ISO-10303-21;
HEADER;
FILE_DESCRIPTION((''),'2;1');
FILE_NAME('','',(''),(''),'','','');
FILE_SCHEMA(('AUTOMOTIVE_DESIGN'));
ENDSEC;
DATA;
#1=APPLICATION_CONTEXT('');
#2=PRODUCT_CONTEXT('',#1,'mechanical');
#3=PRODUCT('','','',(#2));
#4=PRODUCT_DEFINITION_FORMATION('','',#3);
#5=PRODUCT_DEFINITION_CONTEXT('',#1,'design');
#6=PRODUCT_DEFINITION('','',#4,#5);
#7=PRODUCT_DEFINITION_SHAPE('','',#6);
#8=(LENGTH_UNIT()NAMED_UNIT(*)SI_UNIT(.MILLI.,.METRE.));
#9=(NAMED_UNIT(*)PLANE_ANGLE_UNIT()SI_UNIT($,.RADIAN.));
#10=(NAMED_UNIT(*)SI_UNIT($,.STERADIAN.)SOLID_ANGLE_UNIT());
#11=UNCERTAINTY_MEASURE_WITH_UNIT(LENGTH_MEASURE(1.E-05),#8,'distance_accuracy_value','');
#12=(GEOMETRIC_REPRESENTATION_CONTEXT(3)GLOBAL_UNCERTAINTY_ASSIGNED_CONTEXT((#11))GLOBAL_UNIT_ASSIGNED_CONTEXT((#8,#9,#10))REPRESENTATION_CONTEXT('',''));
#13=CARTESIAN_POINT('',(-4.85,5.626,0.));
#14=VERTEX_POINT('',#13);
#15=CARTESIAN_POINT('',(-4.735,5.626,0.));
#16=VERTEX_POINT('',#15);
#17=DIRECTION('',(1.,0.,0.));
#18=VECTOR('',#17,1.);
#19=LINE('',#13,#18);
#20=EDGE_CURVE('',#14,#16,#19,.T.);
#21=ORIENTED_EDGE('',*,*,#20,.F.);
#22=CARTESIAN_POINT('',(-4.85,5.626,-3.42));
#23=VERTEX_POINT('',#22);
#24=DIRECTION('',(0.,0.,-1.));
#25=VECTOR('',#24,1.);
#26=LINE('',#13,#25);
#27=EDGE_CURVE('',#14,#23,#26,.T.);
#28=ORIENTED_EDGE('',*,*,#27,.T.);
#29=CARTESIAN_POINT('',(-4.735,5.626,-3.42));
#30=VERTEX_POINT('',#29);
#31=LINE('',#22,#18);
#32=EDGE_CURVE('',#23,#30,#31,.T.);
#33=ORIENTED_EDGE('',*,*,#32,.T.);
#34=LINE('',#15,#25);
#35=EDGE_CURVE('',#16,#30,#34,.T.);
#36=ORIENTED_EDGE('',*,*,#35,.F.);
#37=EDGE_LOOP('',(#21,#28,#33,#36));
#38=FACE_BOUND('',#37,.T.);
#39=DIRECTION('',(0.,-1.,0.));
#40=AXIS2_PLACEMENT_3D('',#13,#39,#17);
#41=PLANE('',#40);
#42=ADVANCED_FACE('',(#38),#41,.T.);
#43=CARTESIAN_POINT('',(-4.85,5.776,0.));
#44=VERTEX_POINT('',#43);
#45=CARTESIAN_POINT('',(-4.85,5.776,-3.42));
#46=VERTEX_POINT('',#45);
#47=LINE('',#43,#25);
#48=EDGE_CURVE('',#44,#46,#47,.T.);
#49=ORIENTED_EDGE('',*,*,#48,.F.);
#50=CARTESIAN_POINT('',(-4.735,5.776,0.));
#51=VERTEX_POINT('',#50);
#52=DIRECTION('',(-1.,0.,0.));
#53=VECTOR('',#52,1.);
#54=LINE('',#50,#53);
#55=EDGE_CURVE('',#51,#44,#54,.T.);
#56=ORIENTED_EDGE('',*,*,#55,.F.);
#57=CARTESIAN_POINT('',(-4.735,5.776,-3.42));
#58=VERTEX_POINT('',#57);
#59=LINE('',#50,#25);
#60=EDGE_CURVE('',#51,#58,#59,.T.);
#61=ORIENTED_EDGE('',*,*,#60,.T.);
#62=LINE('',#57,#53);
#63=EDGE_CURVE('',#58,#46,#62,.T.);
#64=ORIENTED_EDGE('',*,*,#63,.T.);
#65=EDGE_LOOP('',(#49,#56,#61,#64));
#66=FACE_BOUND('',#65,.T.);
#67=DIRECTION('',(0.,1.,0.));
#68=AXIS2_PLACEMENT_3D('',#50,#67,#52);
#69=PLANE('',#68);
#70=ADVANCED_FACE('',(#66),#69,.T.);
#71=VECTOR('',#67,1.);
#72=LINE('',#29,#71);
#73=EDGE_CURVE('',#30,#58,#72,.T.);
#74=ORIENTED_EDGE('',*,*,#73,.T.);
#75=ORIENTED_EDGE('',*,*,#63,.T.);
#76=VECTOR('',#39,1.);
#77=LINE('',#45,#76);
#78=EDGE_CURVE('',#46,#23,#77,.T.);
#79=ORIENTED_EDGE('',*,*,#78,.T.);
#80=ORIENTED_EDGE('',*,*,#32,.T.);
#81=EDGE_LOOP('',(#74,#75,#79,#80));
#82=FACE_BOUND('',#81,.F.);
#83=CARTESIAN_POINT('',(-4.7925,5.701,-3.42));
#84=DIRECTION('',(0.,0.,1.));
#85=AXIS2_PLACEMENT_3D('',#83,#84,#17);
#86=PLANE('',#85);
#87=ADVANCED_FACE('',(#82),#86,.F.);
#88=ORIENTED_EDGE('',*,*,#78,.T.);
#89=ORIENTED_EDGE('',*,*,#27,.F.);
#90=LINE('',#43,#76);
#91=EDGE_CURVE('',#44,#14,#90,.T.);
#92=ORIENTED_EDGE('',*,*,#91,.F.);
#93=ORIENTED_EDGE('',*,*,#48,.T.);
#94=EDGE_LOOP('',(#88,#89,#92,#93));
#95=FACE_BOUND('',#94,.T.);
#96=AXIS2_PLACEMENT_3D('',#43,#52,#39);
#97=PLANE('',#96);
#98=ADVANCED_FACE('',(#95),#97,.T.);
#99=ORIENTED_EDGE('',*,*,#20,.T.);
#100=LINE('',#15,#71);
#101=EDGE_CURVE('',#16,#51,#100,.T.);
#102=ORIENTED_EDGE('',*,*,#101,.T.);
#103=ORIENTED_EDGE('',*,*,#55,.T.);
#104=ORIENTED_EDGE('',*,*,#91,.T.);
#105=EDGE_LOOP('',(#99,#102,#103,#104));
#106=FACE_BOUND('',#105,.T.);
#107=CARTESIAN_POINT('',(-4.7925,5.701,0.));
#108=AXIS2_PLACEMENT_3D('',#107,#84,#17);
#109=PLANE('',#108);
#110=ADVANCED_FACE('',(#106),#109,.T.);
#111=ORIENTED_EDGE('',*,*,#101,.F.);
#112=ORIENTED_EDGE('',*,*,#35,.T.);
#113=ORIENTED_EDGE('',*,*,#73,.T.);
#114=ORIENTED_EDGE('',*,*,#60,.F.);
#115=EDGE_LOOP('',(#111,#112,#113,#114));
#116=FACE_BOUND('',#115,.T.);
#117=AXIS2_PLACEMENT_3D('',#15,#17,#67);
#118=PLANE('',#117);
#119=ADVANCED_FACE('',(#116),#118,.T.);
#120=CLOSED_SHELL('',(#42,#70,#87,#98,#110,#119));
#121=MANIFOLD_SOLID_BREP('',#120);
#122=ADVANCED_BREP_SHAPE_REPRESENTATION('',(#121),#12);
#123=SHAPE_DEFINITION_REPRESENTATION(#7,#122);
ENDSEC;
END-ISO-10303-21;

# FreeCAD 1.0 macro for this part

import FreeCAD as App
import Part
import Sketcher

V = App.Vector
Q = App.Units.Quantity

doc = App.newDocument("Part")
body = doc.addObject("PartDesign::Body", "Body")

# Sketch on XY plane
sketch1 = body.newObject("Sketcher::SketchObject", "Sketch")
sketch1.AttachmentSupport = (doc.getObject("XY_Plane"), [""])
sketch1.MapMode = "FlatFace"
sketch1.addGeometry([
    Part.LineSegment(V(-4.74, 5.78, 0), V(-4.85, 5.78, 0)),
    Part.LineSegment(V(-4.85, 5.78, 0), V(-4.85, 5.63, 0)),
    Part.LineSegment(V(-4.85, 5.63, 0), V(-4.74, 5.63, 0)),
    Part.LineSegment(V(-4.74, 5.63, 0), V(-4.74, 5.78, 0)),
], False)
sketch1.addConstraint([
    Sketcher.Constraint("Coincident", 0, 2, 1, 1),
    Sketcher.Constraint("Coincident", 1, 2, 2, 1),
    Sketcher.Constraint("Coincident", 2, 2, 3, 1),
    Sketcher.Constraint("Coincident", 3, 2, 0, 1),
    Sketcher.Constraint("Horizontal", 0),
    Sketcher.Constraint("Vertical", 1),
    Sketcher.Constraint("Horizontal", 2),
    Sketcher.Constraint("Vertical", 3),
    Sketcher.Constraint("DistanceX", 0, 2, -1, 1, Q("4.85 mm")),
    Sketcher.Constraint("DistanceY", 1, 2, 1, 1, Q("0.15 mm")),
    Sketcher.Constraint("DistanceX", 0, 2, 0, 1, Q("0.115 mm")),
    Sketcher.Constraint("DistanceY", -1, 1, 0, 2, Q("5.776 mm")),
])
pad1 = body.newObject("PartDesign::Pad", "Pad")
pad1.Profile = sketch1
pad1.Length = 3.42
pad1.Reversed = True

doc.recompute()
